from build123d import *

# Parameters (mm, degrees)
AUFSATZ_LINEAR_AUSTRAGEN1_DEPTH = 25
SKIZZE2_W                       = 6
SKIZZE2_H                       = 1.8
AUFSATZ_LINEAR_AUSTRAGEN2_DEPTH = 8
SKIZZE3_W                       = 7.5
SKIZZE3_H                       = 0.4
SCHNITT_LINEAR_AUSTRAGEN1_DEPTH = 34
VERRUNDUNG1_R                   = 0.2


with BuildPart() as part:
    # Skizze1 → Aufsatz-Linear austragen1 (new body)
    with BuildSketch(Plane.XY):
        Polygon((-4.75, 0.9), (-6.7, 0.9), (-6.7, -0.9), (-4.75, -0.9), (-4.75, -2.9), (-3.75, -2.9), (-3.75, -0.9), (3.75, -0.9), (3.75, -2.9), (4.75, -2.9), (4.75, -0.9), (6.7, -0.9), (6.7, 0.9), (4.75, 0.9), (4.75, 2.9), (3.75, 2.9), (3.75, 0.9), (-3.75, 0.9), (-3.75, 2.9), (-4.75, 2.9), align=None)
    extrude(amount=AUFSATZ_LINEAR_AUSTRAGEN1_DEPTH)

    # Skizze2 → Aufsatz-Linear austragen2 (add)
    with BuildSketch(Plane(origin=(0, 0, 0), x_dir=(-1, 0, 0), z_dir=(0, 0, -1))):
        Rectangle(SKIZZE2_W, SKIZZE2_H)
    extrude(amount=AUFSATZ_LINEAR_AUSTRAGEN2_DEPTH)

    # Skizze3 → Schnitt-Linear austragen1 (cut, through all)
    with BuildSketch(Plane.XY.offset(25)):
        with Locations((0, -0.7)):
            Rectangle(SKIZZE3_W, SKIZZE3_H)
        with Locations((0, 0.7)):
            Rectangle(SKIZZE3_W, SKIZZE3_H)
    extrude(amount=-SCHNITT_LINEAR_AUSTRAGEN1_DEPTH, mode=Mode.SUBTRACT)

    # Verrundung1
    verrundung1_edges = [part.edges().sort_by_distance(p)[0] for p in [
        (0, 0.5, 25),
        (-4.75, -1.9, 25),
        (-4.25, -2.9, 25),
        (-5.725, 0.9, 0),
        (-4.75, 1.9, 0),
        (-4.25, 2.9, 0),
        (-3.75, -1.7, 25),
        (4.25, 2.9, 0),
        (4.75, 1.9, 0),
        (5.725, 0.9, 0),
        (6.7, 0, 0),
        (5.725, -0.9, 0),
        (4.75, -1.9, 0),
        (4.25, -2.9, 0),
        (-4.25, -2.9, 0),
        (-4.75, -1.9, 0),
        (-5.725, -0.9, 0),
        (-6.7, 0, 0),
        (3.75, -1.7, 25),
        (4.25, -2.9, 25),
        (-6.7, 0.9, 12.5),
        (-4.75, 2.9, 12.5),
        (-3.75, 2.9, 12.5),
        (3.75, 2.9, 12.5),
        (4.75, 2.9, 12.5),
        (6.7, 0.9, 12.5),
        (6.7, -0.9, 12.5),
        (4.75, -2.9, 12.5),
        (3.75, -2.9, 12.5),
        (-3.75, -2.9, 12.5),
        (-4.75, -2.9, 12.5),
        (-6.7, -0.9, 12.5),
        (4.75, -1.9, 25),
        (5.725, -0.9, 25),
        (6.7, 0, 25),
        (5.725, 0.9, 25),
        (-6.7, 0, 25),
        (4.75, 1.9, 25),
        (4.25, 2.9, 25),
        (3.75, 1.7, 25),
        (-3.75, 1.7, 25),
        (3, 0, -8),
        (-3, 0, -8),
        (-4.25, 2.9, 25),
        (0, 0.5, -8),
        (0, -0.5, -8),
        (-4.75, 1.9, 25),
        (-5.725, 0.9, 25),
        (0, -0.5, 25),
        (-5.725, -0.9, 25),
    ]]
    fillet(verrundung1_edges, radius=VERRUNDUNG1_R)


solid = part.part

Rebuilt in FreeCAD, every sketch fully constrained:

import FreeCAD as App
import Part
import Sketcher


def edges_at(feature, points):
    """Names of the edges that pass closest to the given points."""
    edges = feature.Shape.Edges
    near = lambda p: min(range(len(edges)), key=lambda i: edges[i].distToShape(Part.Vertex(*p))[0])
    return sorted({f"Edge{near(p) + 1}" for p in points})

doc = App.newDocument("Part")
body = doc.addObject("PartDesign::Body", "Body")

sketch1 = body.newObject("Sketcher::SketchObject", "Sketch")
sketch1.AttachmentSupport = (doc.getObject("XY_Plane"), [""])
sketch1.MapMode = "FlatFace"
sketch1.addGeometry([
    Part.LineSegment(App.Vector(-4.8, 0.9, 0), App.Vector(-6.7, 0.9, 0)),
    Part.LineSegment(App.Vector(-6.7, 0.9, 0), App.Vector(-6.7, -0.9, 0)),
    Part.LineSegment(App.Vector(-6.7, -0.9, 0), App.Vector(-4.8, -0.9, 0)),
    Part.LineSegment(App.Vector(-4.8, -0.9, 0), App.Vector(-4.8, -2.9, 0)),
    Part.LineSegment(App.Vector(-4.8, -2.9, 0), App.Vector(-3.8, -2.9, 0)),
    Part.LineSegment(App.Vector(-3.8, -2.9, 0), App.Vector(-3.8, -0.9, 0)),
    Part.LineSegment(App.Vector(-3.8, -0.9, 0), App.Vector(3.8, -0.9, 0)),
    Part.LineSegment(App.Vector(3.8, -0.9, 0), App.Vector(3.8, -2.9, 0)),
    Part.LineSegment(App.Vector(3.8, -2.9, 0), App.Vector(4.8, -2.9, 0)),
    Part.LineSegment(App.Vector(4.8, -2.9, 0), App.Vector(4.8, -0.9, 0)),
    Part.LineSegment(App.Vector(4.8, -0.9, 0), App.Vector(6.7, -0.9, 0)),
    Part.LineSegment(App.Vector(6.7, -0.9, 0), App.Vector(6.7, 0.9, 0)),
    Part.LineSegment(App.Vector(6.7, 0.9, 0), App.Vector(4.8, 0.9, 0)),
    Part.LineSegment(App.Vector(4.8, 0.9, 0), App.Vector(4.8, 2.9, 0)),
    Part.LineSegment(App.Vector(4.8, 2.9, 0), App.Vector(3.8, 2.9, 0)),
    Part.LineSegment(App.Vector(3.8, 2.9, 0), App.Vector(3.8, 0.9, 0)),
    Part.LineSegment(App.Vector(3.8, 0.9, 0), App.Vector(-3.8, 0.9, 0)),
    Part.LineSegment(App.Vector(-3.8, 0.9, 0), App.Vector(-3.8, 2.9, 0)),
    Part.LineSegment(App.Vector(-3.8, 2.9, 0), App.Vector(-4.8, 2.9, 0)),
    Part.LineSegment(App.Vector(-4.8, 2.9, 0), App.Vector(-4.8, 0.9, 0)),
], False)
sketch1.addConstraint([
    Sketcher.Constraint("Coincident", 0, 2, 1, 1),
    Sketcher.Constraint("Coincident", 1, 2, 2, 1),
    Sketcher.Constraint("Coincident", 2, 2, 3, 1),
    Sketcher.Constraint("Coincident", 3, 2, 4, 1),
    Sketcher.Constraint("Coincident", 4, 2, 5, 1),
    Sketcher.Constraint("Coincident", 5, 2, 6, 1),
    Sketcher.Constraint("Coincident", 6, 2, 7, 1),
    Sketcher.Constraint("Coincident", 7, 2, 8, 1),
    Sketcher.Constraint("Coincident", 8, 2, 9, 1),
    Sketcher.Constraint("Coincident", 9, 2, 10, 1),
    Sketcher.Constraint("Coincident", 10, 2, 11, 1),
    Sketcher.Constraint("Coincident", 11, 2, 12, 1),
    Sketcher.Constraint("Coincident", 12, 2, 13, 1),
    Sketcher.Constraint("Coincident", 13, 2, 14, 1),
    Sketcher.Constraint("Coincident", 14, 2, 15, 1),
    Sketcher.Constraint("Coincident", 15, 2, 16, 1),
    Sketcher.Constraint("Coincident", 16, 2, 17, 1),
    Sketcher.Constraint("Coincident", 17, 2, 18, 1),
    Sketcher.Constraint("Coincident", 18, 2, 19, 1),
    Sketcher.Constraint("Coincident", 19, 2, 0, 1),
    Sketcher.Constraint("Horizontal", 0),
    Sketcher.Constraint("Vertical", 1),
    Sketcher.Constraint("Horizontal", 2),
    Sketcher.Constraint("Vertical", 3),
    Sketcher.Constraint("Horizontal", 4),
    Sketcher.Constraint("Vertical", 5),
    Sketcher.Constraint("Horizontal", 6),
    Sketcher.Constraint("Vertical", 7),
    Sketcher.Constraint("Horizontal", 8),
    Sketcher.Constraint("Vertical", 9),
    Sketcher.Constraint("Horizontal", 10),
    Sketcher.Constraint("Vertical", 11),
    Sketcher.Constraint("Horizontal", 12),
    Sketcher.Constraint("Vertical", 13),
    Sketcher.Constraint("Horizontal", 14),
    Sketcher.Constraint("Vertical", 15),
    Sketcher.Constraint("Horizontal", 16),
    Sketcher.Constraint("Vertical", 17),
    Sketcher.Constraint("Horizontal", 18),
    Sketcher.Constraint("Vertical", 19),
    Sketcher.Constraint("Symmetric", 0, 2, 10, 2, -1, 1),
    Sketcher.Constraint("Symmetric", 2, 2, 12, 2, -1, 1),
    Sketcher.Constraint("Symmetric", 4, 2, 14, 2, -1, 1),
    Sketcher.Constraint("Symmetric", 6, 2, 16, 2, -1, 1),
    Sketcher.Constraint("Symmetric", 8, 2, 18, 2, -1, 1),
    Sketcher.Constraint("Symmetric", 4, 2, 7, 2, -2),
    Sketcher.Constraint("Symmetric", 2, 2, 9, 2, -2),
    Sketcher.Constraint("Horizontal", 2, 2, 5, 2),
    Sketcher.Constraint("DistanceX", 4, 1, 4, 2, 1.0),
    Sketcher.Constraint("DistanceY", 3, 2, 3, 1, 2.0),
    Sketcher.Constraint("DistanceX", 6, 1, 6, 2, 7.5),
    Sketcher.Constraint("DistanceY", 1, 2, 1, 1, 1.8),
    Sketcher.Constraint("DistanceX", 0, 2, 0, 1, 1.95),
])
pad1 = body.newObject("PartDesign::Pad", "Pad")
pad1.Profile = sketch1
pad1.Length = 25

sketch2 = body.newObject("Sketcher::SketchObject", "Sketch001")
sketch2.AttachmentSupport = (doc.getObject("XY_Plane"), [""])
sketch2.MapMode = "FlatFace"
sketch2.addGeometry([
    Part.LineSegment(App.Vector(3, 0.9, 0), App.Vector(3, -0.9, 0)),
    Part.LineSegment(App.Vector(3, -0.9, 0), App.Vector(-3, -0.9, 0)),
    Part.LineSegment(App.Vector(-3, -0.9, 0), App.Vector(-3, 0.9, 0)),
    Part.LineSegment(App.Vector(-3, 0.9, 0), App.Vector(3, 0.9, 0)),
], False)
sketch2.addConstraint([
    Sketcher.Constraint("Coincident", 0, 2, 1, 1),
    Sketcher.Constraint("Coincident", 1, 2, 2, 1),
    Sketcher.Constraint("Coincident", 2, 2, 3, 1),
    Sketcher.Constraint("Coincident", 3, 2, 0, 1),
    Sketcher.Constraint("Vertical", 0),
    Sketcher.Constraint("Horizontal", 1),
    Sketcher.Constraint("Vertical", 2),
    Sketcher.Constraint("Horizontal", 3),
    Sketcher.Constraint("Symmetric", 0, 2, 2, 2, -1, 1),
    Sketcher.Constraint("DistanceX", 1, 2, 1, 1, 6.0),
    Sketcher.Constraint("DistanceY", 0, 2, 0, 1, 1.8),
])
pad2 = body.newObject("PartDesign::Pad", "Pad001")
pad2.Profile = sketch2
pad2.Length = 8
pad2.Reversed = True

sketch3 = body.newObject("Sketcher::SketchObject", "Sketch002")
sketch3.AttachmentSupport = (doc.getObject("XY_Plane"), [""])
sketch3.MapMode = "FlatFace"
sketch3.AttachmentOffset = App.Placement(App.Vector(0, 0, 25), App.Rotation())
sketch3.addGeometry([
    Part.LineSegment(App.Vector(-3.75, -0.5, 0), App.Vector(-3.75, -0.9, 0)),
    Part.LineSegment(App.Vector(-3.75, -0.9, 0), App.Vector(3.75, -0.9, 0)),
    Part.LineSegment(App.Vector(3.75, -0.9, 0), App.Vector(3.75, -0.5, 0)),
    Part.LineSegment(App.Vector(3.75, -0.5, 0), App.Vector(-3.75, -0.5, 0)),
    Part.LineSegment(App.Vector(-3.75, 0.9, 0), App.Vector(-3.75, 0.5, 0)),
    Part.LineSegment(App.Vector(-3.75, 0.5, 0), App.Vector(3.75, 0.5, 0)),
    Part.LineSegment(App.Vector(3.75, 0.5, 0), App.Vector(3.75, 0.9, 0)),
    Part.LineSegment(App.Vector(3.75, 0.9, 0), App.Vector(-3.75, 0.9, 0)),
], False)
sketch3.addConstraint([
    Sketcher.Constraint("Coincident", 0, 2, 1, 1),
    Sketcher.Constraint("Coincident", 1, 2, 2, 1),
    Sketcher.Constraint("Coincident", 2, 2, 3, 1),
    Sketcher.Constraint("Coincident", 3, 2, 0, 1),
    Sketcher.Constraint("Coincident", 4, 2, 5, 1),
    Sketcher.Constraint("Coincident", 5, 2, 6, 1),
    Sketcher.Constraint("Coincident", 6, 2, 7, 1),
    Sketcher.Constraint("Coincident", 7, 2, 4, 1),
    Sketcher.Constraint("Vertical", 0),
    Sketcher.Constraint("Horizontal", 1),
    Sketcher.Constraint("Vertical", 2),
    Sketcher.Constraint("Horizontal", 3),
    Sketcher.Constraint("Vertical", 4),
    Sketcher.Constraint("Horizontal", 5),
    Sketcher.Constraint("Vertical", 6),
    Sketcher.Constraint("Horizontal", 7),
    Sketcher.Constraint("Symmetric", 2, 2, 4, 2, -1, 1),
    Sketcher.Constraint("Symmetric", 0, 2, 6, 2, -1, 1),
    Sketcher.Constraint("Vertical", 3, 2, 4, 2),
    Sketcher.Constraint("DistanceX", 1, 1, 1, 2, 7.5),
    Sketcher.Constraint("DistanceY", 0, 2, 0, 1, 0.4),
    Sketcher.Constraint("DistanceY", 3, 2, 4, 2, 1.0),
])
pocket1 = body.newObject("PartDesign::Pocket", "Pocket")
pocket1.Profile = sketch3
pocket1.Type = "ThroughAll"
doc.recompute()

fillet = body.newObject("PartDesign::Fillet", "Fillet")
fillet.Base = (pocket1, edges_at(pocket1, [
    (0, 0.5, 25),
    (-4.75, -1.9, 25),
    (-4.25, -2.9, 25),
    (-5.725, 0.9, 0),
    (-4.75, 1.9, 0),
    (-4.25, 2.9, 0),
    (-3.75, -1.7, 25),
    (4.25, 2.9, 0),
    (4.75, 1.9, 0),
    (5.725, 0.9, 0),
    (6.7, 0, 0),
    (5.725, -0.9, 0),
    (4.75, -1.9, 0),
    (4.25, -2.9, 0),
    (-4.25, -2.9, 0),
    (-4.75, -1.9, 0),
    (-5.725, -0.9, 0),
    (-6.7, 0, 0),
    (3.75, -1.7, 25),
    (4.25, -2.9, 25),
    (-6.7, 0.9, 12.5),
    (-4.75, 2.9, 12.5),
    (-3.75, 2.9, 12.5),
    (3.75, 2.9, 12.5),
    (4.75, 2.9, 12.5),
    (6.7, 0.9, 12.5),
    (6.7, -0.9, 12.5),
    (4.75, -2.9, 12.5),
    (3.75, -2.9, 12.5),
    (-3.75, -2.9, 12.5),
    (-4.75, -2.9, 12.5),
    (-6.7, -0.9, 12.5),
    (4.75, -1.9, 25),
    (5.725, -0.9, 25),
    (6.7, 0, 25),
    (5.725, 0.9, 25),
    (-6.7, 0, 25),
    (4.75, 1.9, 25),
    (4.25, 2.9, 25),
    (3.75, 1.7, 25),
    (-3.75, 1.7, 25),
    (3, 0, -8),
    (-3, 0, -8),
    (-4.25, 2.9, 25),
    (0, 0.5, -8),
    (0, -0.5, -8),
    (-4.75, 1.9, 25),
    (-5.725, 0.9, 25),
    (0, -0.5, 25),
    (-5.725, -0.9, 25),
]))
fillet.Radius = 0.2

doc.recompute()
